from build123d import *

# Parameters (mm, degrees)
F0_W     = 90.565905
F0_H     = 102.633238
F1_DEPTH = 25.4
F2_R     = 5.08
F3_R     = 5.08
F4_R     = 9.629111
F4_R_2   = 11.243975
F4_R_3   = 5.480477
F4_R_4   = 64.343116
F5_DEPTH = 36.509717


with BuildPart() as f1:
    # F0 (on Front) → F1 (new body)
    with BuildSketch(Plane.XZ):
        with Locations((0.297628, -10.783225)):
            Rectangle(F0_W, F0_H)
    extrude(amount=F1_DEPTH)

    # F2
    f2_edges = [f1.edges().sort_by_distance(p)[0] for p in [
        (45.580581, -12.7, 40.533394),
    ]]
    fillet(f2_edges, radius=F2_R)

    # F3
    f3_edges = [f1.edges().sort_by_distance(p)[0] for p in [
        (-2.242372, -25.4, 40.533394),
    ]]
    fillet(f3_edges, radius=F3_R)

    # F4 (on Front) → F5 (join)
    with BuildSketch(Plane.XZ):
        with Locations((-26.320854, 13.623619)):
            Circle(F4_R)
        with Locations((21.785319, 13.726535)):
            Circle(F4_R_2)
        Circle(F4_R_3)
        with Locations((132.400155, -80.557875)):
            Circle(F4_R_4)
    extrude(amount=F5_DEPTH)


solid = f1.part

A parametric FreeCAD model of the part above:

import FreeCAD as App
import Part
import Sketcher
from FreeCAD import Vector


def edges_at(feature, points):
    """Names of the edges that pass closest to the given points."""
    edges = feature.Shape.Edges
    near = lambda p: min(range(len(edges)), key=lambda i: edges[i].distToShape(Part.Vertex(*p))[0])
    return sorted({f"Edge{near(p) + 1}" for p in points})

doc = App.newDocument("Part")
params = doc.addObject("Spreadsheet::Sheet", "Params")
for row, (alias, value) in enumerate([
    ("pad1_length", "1 in"),
    ("fillet_radius", "0.2 in"),
    ("fillet2_radius", "0.2 in"),
    ("pad2_length", "36.509717 mm"),
], start=1):
    params.set(f"A{row}", alias)
    params.set(f"B{row}", "=" + value)
    params.setAlias(f"B{row}", alias)

body = doc.addObject("PartDesign::Body", "Body")
body.AllowCompound = True

# Sketch on XZ plane
sketch1 = body.newObject("Sketcher::SketchObject", "Sketch")
sketch1.AttachmentSupport = (doc.getObject("XZ_Plane"), [""])
sketch1.MapMode = "FlatFace"
sketch1.addGeometry([
    Part.LineSegment(Vector(-45, 41, 0), Vector(-45, -62, 0)),
    Part.LineSegment(Vector(-45, -62, 0), Vector(46, -62, 0)),
    Part.LineSegment(Vector(46, -62, 0), Vector(46, 41, 0)),
    Part.LineSegment(Vector(46, 41, 0), Vector(-45, 41, 0)),
], False)
sketch1.addConstraint([
    Sketcher.Constraint("Coincident", 0, 2, 1, 1),
    Sketcher.Constraint("Coincident", 1, 2, 2, 1),
    Sketcher.Constraint("Coincident", 2, 2, 3, 1),
    Sketcher.Constraint("Coincident", 3, 2, 0, 1),
    Sketcher.Constraint("Vertical", 0),
    Sketcher.Constraint("Horizontal", 1),
    Sketcher.Constraint("Vertical", 2),
    Sketcher.Constraint("Horizontal", 3),
    Sketcher.Constraint("DistanceY", 0, 2, 0, 1, 102.633238),
    Sketcher.Constraint("DistanceX", 1, 1, 1, 2, 90.565905),
    Sketcher.Constraint("DistanceX", -1, 1, 1, 2, 45.580581),
    Sketcher.Constraint("DistanceY", 0, 2, -1, 1, 62.099844),
])
pad1 = body.newObject("PartDesign::Pad", "Pad")
pad1.Profile = sketch1
pad1.setExpression("Length", "Params.pad1_length")
doc.recompute()

fillet = body.newObject("PartDesign::Fillet", "Fillet")
fillet.Base = (pad1, edges_at(pad1, [(45.581, -12.7, 40.533)]))
fillet.setExpression("Radius", "Params.fillet_radius")
doc.recompute()

fillet2 = body.newObject("PartDesign::Fillet", "Fillet001")
fillet2.Base = (fillet, edges_at(fillet, [(-2.242, -25.4, 40.533)]))
fillet2.setExpression("Radius", "Params.fillet2_radius")

# Sketch on XZ plane
sketch2 = body.newObject("Sketcher::SketchObject", "Sketch001")
sketch2.AttachmentSupport = (doc.getObject("XZ_Plane"), [""])
sketch2.MapMode = "FlatFace"
sketch2.addGeometry([
    Part.Circle(Vector(-26, 14, 0), Vector(0, 0, 1), 10),
    Part.Circle(Vector(22, 14, 0), Vector(0, 0, 1), 11),
    Part.Circle(Vector(0, 0, 0), Vector(0, 0, 1), 5),
    Part.Circle(Vector(132, -81, 0), Vector(0, 0, 1), 64),
], False)
sketch2.addConstraint([
    Sketcher.Constraint("Coincident", 2, 3, -1, 1),
    Sketcher.Constraint("Diameter", 0, 19.258222),
    Sketcher.Constraint("Diameter", 1, 22.48795),
    Sketcher.Constraint("Diameter", 3, 128.686232),
    Sketcher.Constraint("Diameter", 2, 10.960954),
    Sketcher.Constraint("DistanceY", -1, 1, 0, 3, 13.623619),
    Sketcher.Constraint("DistanceX", -1, 1, 1, 3, 21.785319),
    Sketcher.Constraint("DistanceY", 3, 3, 1, 3, 94.28441),
    Sketcher.Constraint("DistanceX", 0, 3, 3, 3, 158.721009),
    Sketcher.Constraint("DistanceX", 0, 3, -1, 1, 26.320854),
    Sketcher.Constraint("DistanceY", -1, 1, 1, 3, 13.726535),
])
pad2 = body.newObject("PartDesign::Pad", "Pad001")
pad2.Profile = sketch2
pad2.setExpression("Length", "Params.pad2_length")

doc.recompute()
